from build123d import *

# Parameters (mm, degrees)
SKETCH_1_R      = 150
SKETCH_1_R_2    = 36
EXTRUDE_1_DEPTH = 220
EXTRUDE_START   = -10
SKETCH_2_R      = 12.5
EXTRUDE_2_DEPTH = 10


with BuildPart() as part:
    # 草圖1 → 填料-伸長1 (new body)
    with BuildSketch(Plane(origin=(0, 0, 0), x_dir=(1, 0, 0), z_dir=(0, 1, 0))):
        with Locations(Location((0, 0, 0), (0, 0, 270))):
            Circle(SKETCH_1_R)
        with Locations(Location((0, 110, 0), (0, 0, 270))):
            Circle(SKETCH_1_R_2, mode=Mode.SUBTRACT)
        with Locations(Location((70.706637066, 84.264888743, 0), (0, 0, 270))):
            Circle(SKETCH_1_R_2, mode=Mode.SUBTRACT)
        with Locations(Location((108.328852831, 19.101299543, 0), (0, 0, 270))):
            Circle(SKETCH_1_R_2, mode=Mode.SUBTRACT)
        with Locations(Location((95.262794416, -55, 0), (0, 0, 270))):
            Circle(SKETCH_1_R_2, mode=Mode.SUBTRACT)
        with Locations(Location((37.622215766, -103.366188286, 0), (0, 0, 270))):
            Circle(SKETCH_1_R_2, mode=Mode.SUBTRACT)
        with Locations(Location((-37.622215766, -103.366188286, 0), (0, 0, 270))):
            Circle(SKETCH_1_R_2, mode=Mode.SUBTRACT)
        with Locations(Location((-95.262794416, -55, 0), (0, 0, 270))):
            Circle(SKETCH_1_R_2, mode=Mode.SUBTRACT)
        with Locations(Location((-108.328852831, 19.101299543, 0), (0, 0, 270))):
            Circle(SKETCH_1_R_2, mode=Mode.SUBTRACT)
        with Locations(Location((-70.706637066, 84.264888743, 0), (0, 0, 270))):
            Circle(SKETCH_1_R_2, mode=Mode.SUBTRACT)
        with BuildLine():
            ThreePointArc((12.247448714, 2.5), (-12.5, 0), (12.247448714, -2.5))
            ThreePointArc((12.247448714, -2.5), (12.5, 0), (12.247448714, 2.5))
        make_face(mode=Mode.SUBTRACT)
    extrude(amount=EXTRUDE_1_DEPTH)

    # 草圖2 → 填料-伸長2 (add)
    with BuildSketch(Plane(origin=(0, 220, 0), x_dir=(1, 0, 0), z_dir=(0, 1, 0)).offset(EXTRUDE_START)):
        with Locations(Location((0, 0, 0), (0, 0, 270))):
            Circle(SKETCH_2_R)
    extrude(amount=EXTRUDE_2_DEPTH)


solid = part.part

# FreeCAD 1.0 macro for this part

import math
import FreeCAD as App
import Part
import Sketcher
Q = App.Units.Quantity

doc = App.newDocument("Part")
body = doc.addObject("PartDesign::Body", "Body")

sketch1 = body.newObject("Sketcher::SketchObject", "Sketch")
sketch1.AttachmentSupport = (doc.getObject("XZ_Plane"), [""])
sketch1.MapMode = "FlatFace"
sketch1.addGeometry([
    Part.Circle(App.Vector(0, 0, 0), App.Vector(0, 0, 1), 150),
    Part.Circle(App.Vector(-108, -19, 0), App.Vector(0, 0, 1), 36),
    Part.Circle(App.Vector(-71, -84, 0), App.Vector(0, 0, 1), 36),
    Part.Circle(App.Vector(0, -110, 0), App.Vector(0, 0, 1), 36),
    Part.Circle(App.Vector(-95, 55, 0), App.Vector(0, 0, 1), 36),
    Part.Circle(App.Vector(-38, 103, 0), App.Vector(0, 0, 1), 36),
    Part.Circle(App.Vector(71, -84, 0), App.Vector(0, 0, 1), 36),
    Part.Circle(App.Vector(108, -19, 0), App.Vector(0, 0, 1), 36),
    Part.ArcOfCircle(Part.Circle(App.Vector(0, 0, 0), App.Vector(0, 0, 1), 12), math.radians(12), math.radians(348)),
    Part.ArcOfCircle(Part.Circle(App.Vector(0, 0, 0), App.Vector(0, 0, 1), 13), math.radians(-12), math.radians(12)),
    Part.Circle(App.Vector(38, 103, 0), App.Vector(0, 0, 1), 36),
    Part.Circle(App.Vector(95, 55, 0), App.Vector(0, 0, 1), 36),
], False)
sketch1.addConstraint([
    Sketcher.Constraint("Tangent", 8, 1, 9, 2),
    Sketcher.Constraint("Coincident", 9, 1, 8, 2),
    Sketcher.Constraint("Coincident", 0, 3, -1, 1),
    Sketcher.Constraint("Coincident", 8, 3, -1, 1),
    Sketcher.Constraint("Equal", 1, 2),
    Sketcher.Constraint("Equal", 2, 3),
    Sketcher.Constraint("Equal", 3, 4),
    Sketcher.Constraint("Equal", 4, 5),
    Sketcher.Constraint("Equal", 5, 6),
    Sketcher.Constraint("Equal", 6, 7),
    Sketcher.Constraint("Equal", 7, 10),
    Sketcher.Constraint("Equal", 10, 11),
    Sketcher.Constraint("Symmetric", 2, 3, 6, 3, -2),
    Sketcher.Constraint("Symmetric", 1, 3, 7, 3, -2),
    Sketcher.Constraint("Symmetric", 5, 3, 10, 3, -2),
    Sketcher.Constraint("Symmetric", 4, 3, 11, 3, -2),
    Sketcher.Constraint("PointOnObject", 3, 3, -2),
    Sketcher.Constraint("Vertical", 8, 1, 9, 1),
    Sketcher.Constraint("Diameter", 0, Q("300 mm")),
    Sketcher.Constraint("Diameter", 1, Q("72 mm")),
    Sketcher.Constraint("Radius", 8, Q("12.5 mm")),
    Sketcher.Constraint("DistanceY", 3, 3, -1, 1, Q("110 mm")),
    Sketcher.Constraint("DistanceY", -1, 1, 4, 3, Q("55 mm")),
    Sketcher.Constraint("DistanceY", 9, 1, 8, 1, Q("5 mm")),
    Sketcher.Constraint("DistanceY", 1, 3, -1, 1, Q("19.1013 mm")),
    Sketcher.Constraint("DistanceY", 2, 3, -1, 1, Q("84.264889 mm")),
    Sketcher.Constraint("DistanceY", -1, 1, 5, 3, Q("103.366188 mm")),
    Sketcher.Constraint("DistanceX", 1, 3, 4, 3, Q("13.066058 mm")),
    Sketcher.Constraint("DistanceX", 4, 3, 5, 3, Q("57.640579 mm")),
    Sketcher.Constraint("DistanceX", 2, 3, 5, 3, Q("33.084421 mm")),
    Sketcher.Constraint("DistanceX", 1, 3, 6, 3, Q("179.03549 mm")),
])
pad1 = body.newObject("PartDesign::Pad", "Pad")
pad1.Profile = sketch1
pad1.Length = 220
pad1.Reversed = True

sketch2 = body.newObject("Sketcher::SketchObject", "Sketch001")
sketch2.AttachmentSupport = (doc.getObject("XZ_Plane"), [""])
sketch2.MapMode = "FlatFace"
sketch2.AttachmentOffset = App.Placement(App.Vector(0, 0, -210), App.Rotation())
sketch2.addGeometry(Part.Circle(App.Vector(0, 0, 0), App.Vector(0, 0, 1), 12), False)
sketch2.addConstraint([
    Sketcher.Constraint("Coincident", 0, 3, -1, 1),
    Sketcher.Constraint("Diameter", 0, Q("25 mm")),
])
pad2 = body.newObject("PartDesign::Pad", "Pad001")
pad2.Profile = sketch2
pad2.Length = 10
pad2.Reversed = True

doc.recompute()
